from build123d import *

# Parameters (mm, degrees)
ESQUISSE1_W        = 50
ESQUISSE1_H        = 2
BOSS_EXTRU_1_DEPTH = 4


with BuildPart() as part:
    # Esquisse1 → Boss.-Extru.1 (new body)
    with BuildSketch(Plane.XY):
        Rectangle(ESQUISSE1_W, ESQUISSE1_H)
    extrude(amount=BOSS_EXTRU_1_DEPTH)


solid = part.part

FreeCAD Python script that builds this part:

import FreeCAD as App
import Part
import Sketcher
Q = App.Units.Quantity

doc = App.newDocument("Part")
body = doc.addObject("PartDesign::Body", "Body")

sketch1 = body.newObject("Sketcher::SketchObject", "Sketch")
sketch1.AttachmentSupport = (doc.getObject("XY_Plane"), [""])
sketch1.MapMode = "FlatFace"
sketch1.addGeometry([
    Part.LineSegment(App.Vector(-25, 1, 0), App.Vector(-25, -1, 0)),
    Part.LineSegment(App.Vector(-25, -1, 0), App.Vector(25, -1, 0)),
    Part.LineSegment(App.Vector(25, -1, 0), App.Vector(25, 1, 0)),
    Part.LineSegment(App.Vector(25, 1, 0), App.Vector(-25, 1, 0)),
], False)
sketch1.addConstraint([
    Sketcher.Constraint("Coincident", 0, 2, 1, 1),
    Sketcher.Constraint("Coincident", 1, 2, 2, 1),
    Sketcher.Constraint("Coincident", 2, 2, 3, 1),
    Sketcher.Constraint("Coincident", 3, 2, 0, 1),
    Sketcher.Constraint("Vertical", 0),
    Sketcher.Constraint("Horizontal", 1),
    Sketcher.Constraint("Vertical", 2),
    Sketcher.Constraint("Horizontal", 3),
    Sketcher.Constraint("Symmetric", 0, 2, 2, 2, -1, 1),
    Sketcher.Constraint("DistanceX", 1, 1, 1, 2, Q("50 mm")),
    Sketcher.Constraint("DistanceY", 0, 2, 0, 1, Q("2 mm")),
])
pad1 = body.newObject("PartDesign::Pad", "Pad")
pad1.Profile = sketch1
pad1.Length = 4

doc.recompute()
